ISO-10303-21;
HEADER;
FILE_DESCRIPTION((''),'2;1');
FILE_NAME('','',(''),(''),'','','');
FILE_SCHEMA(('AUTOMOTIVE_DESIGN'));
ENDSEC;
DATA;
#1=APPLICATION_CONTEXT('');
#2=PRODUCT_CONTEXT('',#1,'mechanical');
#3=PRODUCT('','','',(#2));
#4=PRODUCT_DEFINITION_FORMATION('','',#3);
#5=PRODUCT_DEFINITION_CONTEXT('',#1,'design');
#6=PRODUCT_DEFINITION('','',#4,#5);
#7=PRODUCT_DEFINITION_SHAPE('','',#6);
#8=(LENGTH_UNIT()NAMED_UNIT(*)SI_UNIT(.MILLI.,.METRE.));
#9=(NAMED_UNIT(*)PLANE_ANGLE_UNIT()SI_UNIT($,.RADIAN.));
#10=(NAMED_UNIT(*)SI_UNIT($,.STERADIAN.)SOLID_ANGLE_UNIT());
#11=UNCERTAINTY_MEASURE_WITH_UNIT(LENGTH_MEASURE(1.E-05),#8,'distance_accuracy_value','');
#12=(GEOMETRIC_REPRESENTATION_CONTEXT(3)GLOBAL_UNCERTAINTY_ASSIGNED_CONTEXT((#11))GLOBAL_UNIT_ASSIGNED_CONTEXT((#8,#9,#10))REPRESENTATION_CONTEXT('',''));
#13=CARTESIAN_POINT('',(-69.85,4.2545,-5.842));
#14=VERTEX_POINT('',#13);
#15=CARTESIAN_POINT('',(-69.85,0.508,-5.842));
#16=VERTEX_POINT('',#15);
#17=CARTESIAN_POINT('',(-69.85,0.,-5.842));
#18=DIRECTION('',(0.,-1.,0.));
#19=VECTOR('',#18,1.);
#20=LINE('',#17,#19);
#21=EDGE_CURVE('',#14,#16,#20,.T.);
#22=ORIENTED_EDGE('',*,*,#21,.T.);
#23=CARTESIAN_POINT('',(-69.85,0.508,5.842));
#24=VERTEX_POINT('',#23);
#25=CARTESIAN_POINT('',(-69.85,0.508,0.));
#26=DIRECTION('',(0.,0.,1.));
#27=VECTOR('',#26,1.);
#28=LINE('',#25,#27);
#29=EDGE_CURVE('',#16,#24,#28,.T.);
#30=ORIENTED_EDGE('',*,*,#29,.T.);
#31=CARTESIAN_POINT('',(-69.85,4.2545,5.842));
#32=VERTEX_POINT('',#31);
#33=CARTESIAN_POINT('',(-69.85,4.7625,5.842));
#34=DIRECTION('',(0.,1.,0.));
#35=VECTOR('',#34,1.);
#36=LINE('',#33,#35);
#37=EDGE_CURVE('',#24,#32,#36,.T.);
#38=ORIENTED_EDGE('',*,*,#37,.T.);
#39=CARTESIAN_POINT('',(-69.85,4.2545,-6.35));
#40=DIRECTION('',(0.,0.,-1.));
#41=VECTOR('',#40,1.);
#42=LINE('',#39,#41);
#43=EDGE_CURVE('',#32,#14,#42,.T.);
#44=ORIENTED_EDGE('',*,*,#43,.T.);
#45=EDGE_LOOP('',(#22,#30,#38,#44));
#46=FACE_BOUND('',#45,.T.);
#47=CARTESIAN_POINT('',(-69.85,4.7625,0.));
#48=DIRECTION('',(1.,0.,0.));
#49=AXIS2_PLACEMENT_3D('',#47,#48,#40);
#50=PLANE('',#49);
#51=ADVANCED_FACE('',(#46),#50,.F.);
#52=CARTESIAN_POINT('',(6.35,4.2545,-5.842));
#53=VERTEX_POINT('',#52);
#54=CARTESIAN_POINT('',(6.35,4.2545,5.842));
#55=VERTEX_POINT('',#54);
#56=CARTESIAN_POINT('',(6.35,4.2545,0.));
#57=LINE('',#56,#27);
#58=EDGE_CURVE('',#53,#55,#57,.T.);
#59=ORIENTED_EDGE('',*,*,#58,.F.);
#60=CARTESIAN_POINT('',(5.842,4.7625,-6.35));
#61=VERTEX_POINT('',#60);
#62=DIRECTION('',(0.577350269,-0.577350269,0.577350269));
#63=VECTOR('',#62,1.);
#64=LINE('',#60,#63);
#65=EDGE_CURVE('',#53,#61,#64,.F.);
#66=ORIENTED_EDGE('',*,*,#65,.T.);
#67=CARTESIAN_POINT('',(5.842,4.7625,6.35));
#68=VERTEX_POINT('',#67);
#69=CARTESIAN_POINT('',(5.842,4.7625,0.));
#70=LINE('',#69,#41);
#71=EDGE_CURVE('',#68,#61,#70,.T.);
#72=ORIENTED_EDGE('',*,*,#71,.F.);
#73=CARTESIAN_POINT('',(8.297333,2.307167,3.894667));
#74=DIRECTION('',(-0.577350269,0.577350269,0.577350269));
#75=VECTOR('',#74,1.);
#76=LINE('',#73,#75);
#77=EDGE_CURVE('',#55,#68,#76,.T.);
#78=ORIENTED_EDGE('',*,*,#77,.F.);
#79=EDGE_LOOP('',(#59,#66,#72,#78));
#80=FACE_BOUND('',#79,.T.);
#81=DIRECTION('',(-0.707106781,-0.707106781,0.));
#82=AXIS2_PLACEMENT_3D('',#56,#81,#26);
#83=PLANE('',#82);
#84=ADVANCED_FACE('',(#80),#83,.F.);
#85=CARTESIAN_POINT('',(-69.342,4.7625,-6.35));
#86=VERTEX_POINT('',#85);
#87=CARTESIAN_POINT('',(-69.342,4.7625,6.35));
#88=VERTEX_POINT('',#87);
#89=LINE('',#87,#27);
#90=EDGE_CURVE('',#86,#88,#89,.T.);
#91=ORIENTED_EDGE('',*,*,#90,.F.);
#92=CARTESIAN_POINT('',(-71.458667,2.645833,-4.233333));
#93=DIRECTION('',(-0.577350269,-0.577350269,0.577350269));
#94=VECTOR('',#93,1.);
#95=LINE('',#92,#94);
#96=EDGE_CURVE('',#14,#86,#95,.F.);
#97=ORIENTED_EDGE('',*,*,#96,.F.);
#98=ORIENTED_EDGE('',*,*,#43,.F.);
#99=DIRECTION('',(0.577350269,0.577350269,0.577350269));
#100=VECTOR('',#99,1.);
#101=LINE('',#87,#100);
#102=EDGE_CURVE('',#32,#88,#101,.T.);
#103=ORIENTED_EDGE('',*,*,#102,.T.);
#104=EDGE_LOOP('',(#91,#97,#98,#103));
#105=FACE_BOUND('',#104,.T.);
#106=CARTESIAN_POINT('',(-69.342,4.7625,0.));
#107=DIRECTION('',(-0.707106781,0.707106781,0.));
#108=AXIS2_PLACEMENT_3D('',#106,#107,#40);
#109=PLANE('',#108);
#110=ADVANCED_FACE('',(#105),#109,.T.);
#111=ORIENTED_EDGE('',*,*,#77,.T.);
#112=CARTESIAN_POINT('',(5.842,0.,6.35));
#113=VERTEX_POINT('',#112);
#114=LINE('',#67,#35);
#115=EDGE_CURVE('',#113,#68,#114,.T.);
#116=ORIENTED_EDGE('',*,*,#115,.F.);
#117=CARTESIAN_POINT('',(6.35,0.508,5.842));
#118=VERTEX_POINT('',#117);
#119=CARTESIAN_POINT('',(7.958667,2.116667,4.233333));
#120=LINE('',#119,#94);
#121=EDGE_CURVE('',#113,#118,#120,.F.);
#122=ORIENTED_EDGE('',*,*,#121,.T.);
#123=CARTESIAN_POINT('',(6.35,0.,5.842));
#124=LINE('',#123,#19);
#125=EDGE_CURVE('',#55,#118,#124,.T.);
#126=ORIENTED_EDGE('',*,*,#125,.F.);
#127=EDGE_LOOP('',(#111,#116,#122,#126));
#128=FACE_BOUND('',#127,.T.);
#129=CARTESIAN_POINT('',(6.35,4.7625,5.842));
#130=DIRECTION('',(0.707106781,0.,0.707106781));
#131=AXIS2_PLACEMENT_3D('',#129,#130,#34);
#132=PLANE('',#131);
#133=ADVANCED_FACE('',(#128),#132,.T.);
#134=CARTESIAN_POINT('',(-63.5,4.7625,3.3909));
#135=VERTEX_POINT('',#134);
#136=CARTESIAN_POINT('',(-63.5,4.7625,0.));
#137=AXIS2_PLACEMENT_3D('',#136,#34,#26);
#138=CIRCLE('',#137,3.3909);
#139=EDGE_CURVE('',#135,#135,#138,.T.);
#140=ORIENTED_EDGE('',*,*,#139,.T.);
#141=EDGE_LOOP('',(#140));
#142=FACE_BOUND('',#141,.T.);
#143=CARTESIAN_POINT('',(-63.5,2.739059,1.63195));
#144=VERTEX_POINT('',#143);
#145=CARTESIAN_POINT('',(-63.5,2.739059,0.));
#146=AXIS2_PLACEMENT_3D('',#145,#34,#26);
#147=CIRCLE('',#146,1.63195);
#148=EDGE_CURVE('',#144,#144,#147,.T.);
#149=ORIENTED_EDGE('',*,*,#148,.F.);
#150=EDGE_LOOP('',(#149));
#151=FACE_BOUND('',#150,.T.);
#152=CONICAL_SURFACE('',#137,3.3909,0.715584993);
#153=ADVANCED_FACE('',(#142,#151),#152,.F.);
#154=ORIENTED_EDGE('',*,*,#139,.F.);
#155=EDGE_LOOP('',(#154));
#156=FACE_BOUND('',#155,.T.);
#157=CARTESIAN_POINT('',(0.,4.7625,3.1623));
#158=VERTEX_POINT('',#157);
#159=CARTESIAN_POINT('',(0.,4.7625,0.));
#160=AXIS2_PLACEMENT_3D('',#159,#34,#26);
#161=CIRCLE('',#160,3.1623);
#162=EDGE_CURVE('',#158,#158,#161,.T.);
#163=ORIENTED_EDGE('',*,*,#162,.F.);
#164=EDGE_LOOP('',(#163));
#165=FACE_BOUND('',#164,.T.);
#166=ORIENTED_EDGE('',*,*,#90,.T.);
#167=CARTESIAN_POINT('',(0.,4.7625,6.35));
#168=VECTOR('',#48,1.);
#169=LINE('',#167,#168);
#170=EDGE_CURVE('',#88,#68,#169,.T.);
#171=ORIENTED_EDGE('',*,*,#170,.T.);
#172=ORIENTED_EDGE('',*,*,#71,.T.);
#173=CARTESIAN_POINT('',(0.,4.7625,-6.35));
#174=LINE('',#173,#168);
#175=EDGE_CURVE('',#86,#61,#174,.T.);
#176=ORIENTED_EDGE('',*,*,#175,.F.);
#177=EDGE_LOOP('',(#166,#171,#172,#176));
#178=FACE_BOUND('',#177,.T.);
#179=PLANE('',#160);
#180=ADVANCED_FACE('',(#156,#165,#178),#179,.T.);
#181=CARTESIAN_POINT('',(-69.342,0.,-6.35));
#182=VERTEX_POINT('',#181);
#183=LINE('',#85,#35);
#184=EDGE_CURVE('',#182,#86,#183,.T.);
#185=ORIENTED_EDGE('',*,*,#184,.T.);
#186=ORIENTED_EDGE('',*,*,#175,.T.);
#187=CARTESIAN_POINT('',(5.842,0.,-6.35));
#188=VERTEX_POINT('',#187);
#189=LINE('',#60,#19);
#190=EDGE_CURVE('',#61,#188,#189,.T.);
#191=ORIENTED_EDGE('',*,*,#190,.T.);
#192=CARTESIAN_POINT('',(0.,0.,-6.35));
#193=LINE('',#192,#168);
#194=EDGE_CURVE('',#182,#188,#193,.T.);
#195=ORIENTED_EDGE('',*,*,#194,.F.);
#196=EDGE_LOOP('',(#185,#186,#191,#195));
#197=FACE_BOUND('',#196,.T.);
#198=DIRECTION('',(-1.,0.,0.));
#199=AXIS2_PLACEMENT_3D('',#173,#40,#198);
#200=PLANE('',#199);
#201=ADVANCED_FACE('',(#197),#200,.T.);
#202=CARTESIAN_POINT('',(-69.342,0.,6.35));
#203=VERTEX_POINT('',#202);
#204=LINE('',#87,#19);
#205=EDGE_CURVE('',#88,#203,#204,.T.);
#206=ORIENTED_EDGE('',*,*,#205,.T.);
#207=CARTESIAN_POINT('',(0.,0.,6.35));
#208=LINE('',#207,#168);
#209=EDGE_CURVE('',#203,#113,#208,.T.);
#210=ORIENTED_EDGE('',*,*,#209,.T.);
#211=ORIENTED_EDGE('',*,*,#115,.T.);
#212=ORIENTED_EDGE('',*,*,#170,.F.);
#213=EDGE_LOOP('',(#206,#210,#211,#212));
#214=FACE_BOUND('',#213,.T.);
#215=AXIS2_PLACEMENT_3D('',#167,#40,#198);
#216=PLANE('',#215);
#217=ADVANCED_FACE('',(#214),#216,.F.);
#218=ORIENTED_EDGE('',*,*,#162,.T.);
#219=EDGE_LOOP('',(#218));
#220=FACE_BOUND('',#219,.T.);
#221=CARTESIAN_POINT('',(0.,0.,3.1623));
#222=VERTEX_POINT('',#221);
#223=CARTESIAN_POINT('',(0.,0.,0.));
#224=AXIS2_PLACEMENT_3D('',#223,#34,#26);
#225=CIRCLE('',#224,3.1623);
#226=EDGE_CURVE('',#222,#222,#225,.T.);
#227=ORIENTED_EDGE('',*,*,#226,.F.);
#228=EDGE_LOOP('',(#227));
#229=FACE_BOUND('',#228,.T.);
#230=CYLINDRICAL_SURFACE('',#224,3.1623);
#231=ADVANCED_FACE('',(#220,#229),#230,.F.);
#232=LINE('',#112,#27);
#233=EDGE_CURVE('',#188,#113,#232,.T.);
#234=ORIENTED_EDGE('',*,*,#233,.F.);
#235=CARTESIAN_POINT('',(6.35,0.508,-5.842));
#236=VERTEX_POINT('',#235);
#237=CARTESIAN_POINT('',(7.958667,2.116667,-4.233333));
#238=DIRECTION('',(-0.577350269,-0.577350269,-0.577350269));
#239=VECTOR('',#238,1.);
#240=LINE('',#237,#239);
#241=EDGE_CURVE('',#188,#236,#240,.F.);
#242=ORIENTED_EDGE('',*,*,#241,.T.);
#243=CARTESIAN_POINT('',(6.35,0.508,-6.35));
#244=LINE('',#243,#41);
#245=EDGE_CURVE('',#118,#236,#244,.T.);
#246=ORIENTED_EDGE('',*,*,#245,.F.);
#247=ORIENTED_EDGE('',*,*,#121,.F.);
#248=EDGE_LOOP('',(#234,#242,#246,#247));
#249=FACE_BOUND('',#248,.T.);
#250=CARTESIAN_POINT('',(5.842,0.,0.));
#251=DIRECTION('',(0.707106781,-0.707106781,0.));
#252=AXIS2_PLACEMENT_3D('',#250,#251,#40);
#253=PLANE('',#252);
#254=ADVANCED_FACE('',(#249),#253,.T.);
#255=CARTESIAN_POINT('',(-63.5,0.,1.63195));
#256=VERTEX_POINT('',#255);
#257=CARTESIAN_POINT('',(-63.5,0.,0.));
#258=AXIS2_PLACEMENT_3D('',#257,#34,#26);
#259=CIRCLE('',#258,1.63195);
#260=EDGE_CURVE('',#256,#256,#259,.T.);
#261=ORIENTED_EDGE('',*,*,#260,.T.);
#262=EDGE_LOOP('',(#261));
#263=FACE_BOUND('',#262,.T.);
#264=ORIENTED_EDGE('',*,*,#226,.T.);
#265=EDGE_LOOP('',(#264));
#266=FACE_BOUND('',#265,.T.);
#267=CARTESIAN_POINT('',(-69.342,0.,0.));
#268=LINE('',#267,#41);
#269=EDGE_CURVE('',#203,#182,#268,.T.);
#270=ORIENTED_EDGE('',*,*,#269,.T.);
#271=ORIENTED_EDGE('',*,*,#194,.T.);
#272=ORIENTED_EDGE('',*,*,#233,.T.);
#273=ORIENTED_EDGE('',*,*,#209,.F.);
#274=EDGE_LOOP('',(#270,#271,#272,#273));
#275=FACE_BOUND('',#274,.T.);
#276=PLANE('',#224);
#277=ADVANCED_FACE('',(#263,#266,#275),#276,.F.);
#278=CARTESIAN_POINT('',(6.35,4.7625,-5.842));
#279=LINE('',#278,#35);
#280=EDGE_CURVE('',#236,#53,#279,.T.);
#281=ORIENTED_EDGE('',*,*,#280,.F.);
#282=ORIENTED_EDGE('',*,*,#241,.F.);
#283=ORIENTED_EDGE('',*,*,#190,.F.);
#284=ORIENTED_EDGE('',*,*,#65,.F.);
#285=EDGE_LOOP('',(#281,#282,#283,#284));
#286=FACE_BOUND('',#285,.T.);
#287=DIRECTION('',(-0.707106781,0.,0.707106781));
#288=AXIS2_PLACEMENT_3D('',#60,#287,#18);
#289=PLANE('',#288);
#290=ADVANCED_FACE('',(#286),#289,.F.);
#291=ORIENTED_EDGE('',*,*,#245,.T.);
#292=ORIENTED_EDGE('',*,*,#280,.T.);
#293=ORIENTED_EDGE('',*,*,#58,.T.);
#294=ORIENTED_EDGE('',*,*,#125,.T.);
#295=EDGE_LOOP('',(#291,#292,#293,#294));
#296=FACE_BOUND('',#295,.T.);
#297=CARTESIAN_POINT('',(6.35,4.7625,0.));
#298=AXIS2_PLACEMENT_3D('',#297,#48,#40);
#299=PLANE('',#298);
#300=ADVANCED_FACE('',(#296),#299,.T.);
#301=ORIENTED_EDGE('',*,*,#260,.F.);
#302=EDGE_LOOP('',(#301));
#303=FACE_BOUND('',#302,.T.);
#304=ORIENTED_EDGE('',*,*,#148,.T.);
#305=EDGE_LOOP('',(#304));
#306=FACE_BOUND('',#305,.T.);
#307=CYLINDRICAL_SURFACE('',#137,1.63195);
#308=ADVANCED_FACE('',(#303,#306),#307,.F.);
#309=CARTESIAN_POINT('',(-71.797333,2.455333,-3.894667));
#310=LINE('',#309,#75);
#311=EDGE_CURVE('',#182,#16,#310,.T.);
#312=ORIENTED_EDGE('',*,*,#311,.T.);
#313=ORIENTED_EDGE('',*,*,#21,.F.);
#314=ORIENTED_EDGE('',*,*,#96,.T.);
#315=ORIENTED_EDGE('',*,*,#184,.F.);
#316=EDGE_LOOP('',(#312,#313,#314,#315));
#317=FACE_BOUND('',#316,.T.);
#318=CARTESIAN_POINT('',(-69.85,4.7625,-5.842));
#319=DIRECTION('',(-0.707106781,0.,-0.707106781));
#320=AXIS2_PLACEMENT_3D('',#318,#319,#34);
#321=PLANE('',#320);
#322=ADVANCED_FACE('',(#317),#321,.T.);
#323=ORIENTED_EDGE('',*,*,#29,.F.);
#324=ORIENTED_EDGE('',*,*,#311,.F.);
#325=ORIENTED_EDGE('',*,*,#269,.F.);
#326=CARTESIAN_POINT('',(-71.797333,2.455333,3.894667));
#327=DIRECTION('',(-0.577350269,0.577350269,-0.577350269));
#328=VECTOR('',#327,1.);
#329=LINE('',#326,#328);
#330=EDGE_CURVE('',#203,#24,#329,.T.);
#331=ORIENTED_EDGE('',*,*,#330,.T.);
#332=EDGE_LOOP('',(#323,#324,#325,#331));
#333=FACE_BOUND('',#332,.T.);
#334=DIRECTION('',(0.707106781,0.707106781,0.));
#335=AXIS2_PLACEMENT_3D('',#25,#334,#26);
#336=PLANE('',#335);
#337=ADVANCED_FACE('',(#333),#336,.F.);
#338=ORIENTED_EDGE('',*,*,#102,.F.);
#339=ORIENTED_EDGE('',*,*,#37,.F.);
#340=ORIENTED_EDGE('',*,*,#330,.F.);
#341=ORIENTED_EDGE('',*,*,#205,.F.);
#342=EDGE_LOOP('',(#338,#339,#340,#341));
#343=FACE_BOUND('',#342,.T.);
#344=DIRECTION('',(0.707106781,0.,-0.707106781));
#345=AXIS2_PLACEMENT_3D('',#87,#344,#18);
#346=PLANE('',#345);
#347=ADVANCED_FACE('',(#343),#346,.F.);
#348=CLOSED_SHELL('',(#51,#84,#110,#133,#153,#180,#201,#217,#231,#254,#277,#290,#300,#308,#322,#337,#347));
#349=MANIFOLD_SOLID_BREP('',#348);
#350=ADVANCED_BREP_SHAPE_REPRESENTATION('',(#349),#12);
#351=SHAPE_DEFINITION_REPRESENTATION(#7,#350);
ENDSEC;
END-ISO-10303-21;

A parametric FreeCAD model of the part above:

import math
import FreeCAD as App
import Part
import Sketcher
Q = App.Units.Quantity


def edges_at(feature, points):
    """Names of the edges that pass closest to the given points."""
    edges = feature.Shape.Edges
    near = lambda p: min(range(len(edges)), key=lambda i: edges[i].distToShape(Part.Vertex(*p))[0])
    return sorted({f"Edge{near(p) + 1}" for p in points})


def add_polygon(sketch, points):
    """Adds a closed chain of lines whose ends are joined by coincident constraints."""
    first, n = sketch.GeometryCount, len(points)
    for a, b in zip(points, points[1:] + points[:1]):
        sketch.addGeometry(Part.LineSegment(App.Vector(*a, 0), App.Vector(*b, 0)), False)
    for i in range(n):
        sketch.addConstraint(Sketcher.Constraint("Coincident", first + i, 2, first + (i + 1) % n, 1))

doc = App.newDocument("Part")
body = doc.addObject("PartDesign::Body", "Body")

sketch1 = body.newObject("Sketcher::SketchObject", "Sketch")
sketch1.AttachmentSupport = (doc.getObject("XZ_Plane"), [""])
sketch1.MapMode = "FlatFace"
add_polygon(sketch1, [(-69.85, -6.35), (-69.85, 6.35), (6.35, 6.35), (6.35, -6.35)])
sketch1.addConstraint([
    Sketcher.Constraint("Vertical", 0),
    Sketcher.Constraint("Horizontal", 1),
    Sketcher.Constraint("Vertical", 2),
    Sketcher.Constraint("Horizontal", 3),
    Sketcher.Constraint("DistanceX", 1, 1, 1, 2, Q("3 in")),
    Sketcher.Constraint("DistanceY", 0, 1, 0, 2, Q("0.5 in")),
    Sketcher.Constraint("DistanceX", 0, 2, -1, 1, Q("2.75 in")),
    Sketcher.Constraint("DistanceY", -1, 1, 0, 2, Q("0.25 in")),
])
pad1 = body.newObject("PartDesign::Pad", "Pad")
pad1.Profile = sketch1
pad1.Length = Q("0.1875 in")
pad1.Reversed = True

sketch2 = body.newObject("Sketcher::SketchObject", "Sketch001")
sketch2.AttachmentSupport = (doc.getObject("XZ_Plane"), [""])
sketch2.MapMode = "FlatFace"
sketch2.AttachmentOffset = App.Placement(App.Vector(0, 0, -0.1875 * 25.4), App.Rotation())
sketch2.addGeometry(Part.Circle(App.Vector(-63.5, 0, 0), App.Vector(0, 0, 1), 1.63195), False)
sketch2.addConstraint([
    Sketcher.Constraint("PointOnObject", 0, 3, -1),
    Sketcher.Constraint("Diameter", 0, Q("0.1285 in")),
    Sketcher.Constraint("DistanceX", 0, 3, -1, 1, Q("2.5 in")),
])
doc.recompute()
hole = body.newObject("PartDesign::Hole", "Hole")
hole.Profile = sketch2
hole.ThreadType = "None"
hole.Diameter = Q("0.1285 in")
hole.DepthType = "ThroughAll"
hole.HoleCutType = "Countersink"
hole.HoleCutDiameter = Q("0.267 in")
hole.HoleCutCountersinkAngle = 82
hole.Reversed = True

sketch3 = body.newObject("Sketcher::SketchObject", "Sketch002")
sketch3.AttachmentSupport = (doc.getObject("XZ_Plane"), [""])
sketch3.MapMode = "FlatFace"
sketch3.AttachmentOffset = App.Placement(App.Vector(0, 0, -0.1875 * 25.4), App.Rotation())
sketch3.addGeometry([
    Part.ArcOfCircle(Part.Circle(App.Vector(0, 0, 0), App.Vector(0, 0, 1), 3.1623), math.radians(-90), math.radians(0)),
    Part.ArcOfCircle(Part.Circle(App.Vector(0, 0, 0), App.Vector(0, 0, 1), 3.1623), math.radians(90), math.radians(270)),
    Part.ArcOfCircle(Part.Circle(App.Vector(0, 0, 0), App.Vector(0, 0, 1), 3.1623), math.radians(0), math.radians(90)),
], False)
sketch3.addConstraint([
    Sketcher.Constraint("Tangent", 0, 1, 1, 2),
    Sketcher.Constraint("Tangent", 1, 1, 2, 2),
    Sketcher.Constraint("Tangent", 2, 1, 0, 2),
    Sketcher.Constraint("Coincident", 0, 3, -1, 1),
    Sketcher.Constraint("PointOnObject", 0, 1, -2),
    Sketcher.Constraint("PointOnObject", 1, 1, -2),
    Sketcher.Constraint("PointOnObject", 2, 1, -1),
    Sketcher.Constraint("Radius", 0, Q("0.1245 in")),
])
pocket1 = body.newObject("PartDesign::Pocket", "Pocket")
pocket1.Profile = sketch3
pocket1.Type = "ThroughAll"
pocket1.Reversed = True
doc.recompute()

chamfer = body.newObject("PartDesign::Chamfer", "Chamfer")
chamfer.Base = (pocket1, edges_at(pocket1, [
    (-69.85, 2.381, 6.35),
    (-69.85, 2.381, -6.35),
    (6.35, 2.381, -6.35),
    (6.35, 2.381, 6.35),
    (6.35, 4.763, 0),
    (-69.85, 4.763, 0),
    (-69.85, 0, 0),
    (6.35, 0, 0),
]))
chamfer.Size = Q("0.02 in")

doc.recompute()
